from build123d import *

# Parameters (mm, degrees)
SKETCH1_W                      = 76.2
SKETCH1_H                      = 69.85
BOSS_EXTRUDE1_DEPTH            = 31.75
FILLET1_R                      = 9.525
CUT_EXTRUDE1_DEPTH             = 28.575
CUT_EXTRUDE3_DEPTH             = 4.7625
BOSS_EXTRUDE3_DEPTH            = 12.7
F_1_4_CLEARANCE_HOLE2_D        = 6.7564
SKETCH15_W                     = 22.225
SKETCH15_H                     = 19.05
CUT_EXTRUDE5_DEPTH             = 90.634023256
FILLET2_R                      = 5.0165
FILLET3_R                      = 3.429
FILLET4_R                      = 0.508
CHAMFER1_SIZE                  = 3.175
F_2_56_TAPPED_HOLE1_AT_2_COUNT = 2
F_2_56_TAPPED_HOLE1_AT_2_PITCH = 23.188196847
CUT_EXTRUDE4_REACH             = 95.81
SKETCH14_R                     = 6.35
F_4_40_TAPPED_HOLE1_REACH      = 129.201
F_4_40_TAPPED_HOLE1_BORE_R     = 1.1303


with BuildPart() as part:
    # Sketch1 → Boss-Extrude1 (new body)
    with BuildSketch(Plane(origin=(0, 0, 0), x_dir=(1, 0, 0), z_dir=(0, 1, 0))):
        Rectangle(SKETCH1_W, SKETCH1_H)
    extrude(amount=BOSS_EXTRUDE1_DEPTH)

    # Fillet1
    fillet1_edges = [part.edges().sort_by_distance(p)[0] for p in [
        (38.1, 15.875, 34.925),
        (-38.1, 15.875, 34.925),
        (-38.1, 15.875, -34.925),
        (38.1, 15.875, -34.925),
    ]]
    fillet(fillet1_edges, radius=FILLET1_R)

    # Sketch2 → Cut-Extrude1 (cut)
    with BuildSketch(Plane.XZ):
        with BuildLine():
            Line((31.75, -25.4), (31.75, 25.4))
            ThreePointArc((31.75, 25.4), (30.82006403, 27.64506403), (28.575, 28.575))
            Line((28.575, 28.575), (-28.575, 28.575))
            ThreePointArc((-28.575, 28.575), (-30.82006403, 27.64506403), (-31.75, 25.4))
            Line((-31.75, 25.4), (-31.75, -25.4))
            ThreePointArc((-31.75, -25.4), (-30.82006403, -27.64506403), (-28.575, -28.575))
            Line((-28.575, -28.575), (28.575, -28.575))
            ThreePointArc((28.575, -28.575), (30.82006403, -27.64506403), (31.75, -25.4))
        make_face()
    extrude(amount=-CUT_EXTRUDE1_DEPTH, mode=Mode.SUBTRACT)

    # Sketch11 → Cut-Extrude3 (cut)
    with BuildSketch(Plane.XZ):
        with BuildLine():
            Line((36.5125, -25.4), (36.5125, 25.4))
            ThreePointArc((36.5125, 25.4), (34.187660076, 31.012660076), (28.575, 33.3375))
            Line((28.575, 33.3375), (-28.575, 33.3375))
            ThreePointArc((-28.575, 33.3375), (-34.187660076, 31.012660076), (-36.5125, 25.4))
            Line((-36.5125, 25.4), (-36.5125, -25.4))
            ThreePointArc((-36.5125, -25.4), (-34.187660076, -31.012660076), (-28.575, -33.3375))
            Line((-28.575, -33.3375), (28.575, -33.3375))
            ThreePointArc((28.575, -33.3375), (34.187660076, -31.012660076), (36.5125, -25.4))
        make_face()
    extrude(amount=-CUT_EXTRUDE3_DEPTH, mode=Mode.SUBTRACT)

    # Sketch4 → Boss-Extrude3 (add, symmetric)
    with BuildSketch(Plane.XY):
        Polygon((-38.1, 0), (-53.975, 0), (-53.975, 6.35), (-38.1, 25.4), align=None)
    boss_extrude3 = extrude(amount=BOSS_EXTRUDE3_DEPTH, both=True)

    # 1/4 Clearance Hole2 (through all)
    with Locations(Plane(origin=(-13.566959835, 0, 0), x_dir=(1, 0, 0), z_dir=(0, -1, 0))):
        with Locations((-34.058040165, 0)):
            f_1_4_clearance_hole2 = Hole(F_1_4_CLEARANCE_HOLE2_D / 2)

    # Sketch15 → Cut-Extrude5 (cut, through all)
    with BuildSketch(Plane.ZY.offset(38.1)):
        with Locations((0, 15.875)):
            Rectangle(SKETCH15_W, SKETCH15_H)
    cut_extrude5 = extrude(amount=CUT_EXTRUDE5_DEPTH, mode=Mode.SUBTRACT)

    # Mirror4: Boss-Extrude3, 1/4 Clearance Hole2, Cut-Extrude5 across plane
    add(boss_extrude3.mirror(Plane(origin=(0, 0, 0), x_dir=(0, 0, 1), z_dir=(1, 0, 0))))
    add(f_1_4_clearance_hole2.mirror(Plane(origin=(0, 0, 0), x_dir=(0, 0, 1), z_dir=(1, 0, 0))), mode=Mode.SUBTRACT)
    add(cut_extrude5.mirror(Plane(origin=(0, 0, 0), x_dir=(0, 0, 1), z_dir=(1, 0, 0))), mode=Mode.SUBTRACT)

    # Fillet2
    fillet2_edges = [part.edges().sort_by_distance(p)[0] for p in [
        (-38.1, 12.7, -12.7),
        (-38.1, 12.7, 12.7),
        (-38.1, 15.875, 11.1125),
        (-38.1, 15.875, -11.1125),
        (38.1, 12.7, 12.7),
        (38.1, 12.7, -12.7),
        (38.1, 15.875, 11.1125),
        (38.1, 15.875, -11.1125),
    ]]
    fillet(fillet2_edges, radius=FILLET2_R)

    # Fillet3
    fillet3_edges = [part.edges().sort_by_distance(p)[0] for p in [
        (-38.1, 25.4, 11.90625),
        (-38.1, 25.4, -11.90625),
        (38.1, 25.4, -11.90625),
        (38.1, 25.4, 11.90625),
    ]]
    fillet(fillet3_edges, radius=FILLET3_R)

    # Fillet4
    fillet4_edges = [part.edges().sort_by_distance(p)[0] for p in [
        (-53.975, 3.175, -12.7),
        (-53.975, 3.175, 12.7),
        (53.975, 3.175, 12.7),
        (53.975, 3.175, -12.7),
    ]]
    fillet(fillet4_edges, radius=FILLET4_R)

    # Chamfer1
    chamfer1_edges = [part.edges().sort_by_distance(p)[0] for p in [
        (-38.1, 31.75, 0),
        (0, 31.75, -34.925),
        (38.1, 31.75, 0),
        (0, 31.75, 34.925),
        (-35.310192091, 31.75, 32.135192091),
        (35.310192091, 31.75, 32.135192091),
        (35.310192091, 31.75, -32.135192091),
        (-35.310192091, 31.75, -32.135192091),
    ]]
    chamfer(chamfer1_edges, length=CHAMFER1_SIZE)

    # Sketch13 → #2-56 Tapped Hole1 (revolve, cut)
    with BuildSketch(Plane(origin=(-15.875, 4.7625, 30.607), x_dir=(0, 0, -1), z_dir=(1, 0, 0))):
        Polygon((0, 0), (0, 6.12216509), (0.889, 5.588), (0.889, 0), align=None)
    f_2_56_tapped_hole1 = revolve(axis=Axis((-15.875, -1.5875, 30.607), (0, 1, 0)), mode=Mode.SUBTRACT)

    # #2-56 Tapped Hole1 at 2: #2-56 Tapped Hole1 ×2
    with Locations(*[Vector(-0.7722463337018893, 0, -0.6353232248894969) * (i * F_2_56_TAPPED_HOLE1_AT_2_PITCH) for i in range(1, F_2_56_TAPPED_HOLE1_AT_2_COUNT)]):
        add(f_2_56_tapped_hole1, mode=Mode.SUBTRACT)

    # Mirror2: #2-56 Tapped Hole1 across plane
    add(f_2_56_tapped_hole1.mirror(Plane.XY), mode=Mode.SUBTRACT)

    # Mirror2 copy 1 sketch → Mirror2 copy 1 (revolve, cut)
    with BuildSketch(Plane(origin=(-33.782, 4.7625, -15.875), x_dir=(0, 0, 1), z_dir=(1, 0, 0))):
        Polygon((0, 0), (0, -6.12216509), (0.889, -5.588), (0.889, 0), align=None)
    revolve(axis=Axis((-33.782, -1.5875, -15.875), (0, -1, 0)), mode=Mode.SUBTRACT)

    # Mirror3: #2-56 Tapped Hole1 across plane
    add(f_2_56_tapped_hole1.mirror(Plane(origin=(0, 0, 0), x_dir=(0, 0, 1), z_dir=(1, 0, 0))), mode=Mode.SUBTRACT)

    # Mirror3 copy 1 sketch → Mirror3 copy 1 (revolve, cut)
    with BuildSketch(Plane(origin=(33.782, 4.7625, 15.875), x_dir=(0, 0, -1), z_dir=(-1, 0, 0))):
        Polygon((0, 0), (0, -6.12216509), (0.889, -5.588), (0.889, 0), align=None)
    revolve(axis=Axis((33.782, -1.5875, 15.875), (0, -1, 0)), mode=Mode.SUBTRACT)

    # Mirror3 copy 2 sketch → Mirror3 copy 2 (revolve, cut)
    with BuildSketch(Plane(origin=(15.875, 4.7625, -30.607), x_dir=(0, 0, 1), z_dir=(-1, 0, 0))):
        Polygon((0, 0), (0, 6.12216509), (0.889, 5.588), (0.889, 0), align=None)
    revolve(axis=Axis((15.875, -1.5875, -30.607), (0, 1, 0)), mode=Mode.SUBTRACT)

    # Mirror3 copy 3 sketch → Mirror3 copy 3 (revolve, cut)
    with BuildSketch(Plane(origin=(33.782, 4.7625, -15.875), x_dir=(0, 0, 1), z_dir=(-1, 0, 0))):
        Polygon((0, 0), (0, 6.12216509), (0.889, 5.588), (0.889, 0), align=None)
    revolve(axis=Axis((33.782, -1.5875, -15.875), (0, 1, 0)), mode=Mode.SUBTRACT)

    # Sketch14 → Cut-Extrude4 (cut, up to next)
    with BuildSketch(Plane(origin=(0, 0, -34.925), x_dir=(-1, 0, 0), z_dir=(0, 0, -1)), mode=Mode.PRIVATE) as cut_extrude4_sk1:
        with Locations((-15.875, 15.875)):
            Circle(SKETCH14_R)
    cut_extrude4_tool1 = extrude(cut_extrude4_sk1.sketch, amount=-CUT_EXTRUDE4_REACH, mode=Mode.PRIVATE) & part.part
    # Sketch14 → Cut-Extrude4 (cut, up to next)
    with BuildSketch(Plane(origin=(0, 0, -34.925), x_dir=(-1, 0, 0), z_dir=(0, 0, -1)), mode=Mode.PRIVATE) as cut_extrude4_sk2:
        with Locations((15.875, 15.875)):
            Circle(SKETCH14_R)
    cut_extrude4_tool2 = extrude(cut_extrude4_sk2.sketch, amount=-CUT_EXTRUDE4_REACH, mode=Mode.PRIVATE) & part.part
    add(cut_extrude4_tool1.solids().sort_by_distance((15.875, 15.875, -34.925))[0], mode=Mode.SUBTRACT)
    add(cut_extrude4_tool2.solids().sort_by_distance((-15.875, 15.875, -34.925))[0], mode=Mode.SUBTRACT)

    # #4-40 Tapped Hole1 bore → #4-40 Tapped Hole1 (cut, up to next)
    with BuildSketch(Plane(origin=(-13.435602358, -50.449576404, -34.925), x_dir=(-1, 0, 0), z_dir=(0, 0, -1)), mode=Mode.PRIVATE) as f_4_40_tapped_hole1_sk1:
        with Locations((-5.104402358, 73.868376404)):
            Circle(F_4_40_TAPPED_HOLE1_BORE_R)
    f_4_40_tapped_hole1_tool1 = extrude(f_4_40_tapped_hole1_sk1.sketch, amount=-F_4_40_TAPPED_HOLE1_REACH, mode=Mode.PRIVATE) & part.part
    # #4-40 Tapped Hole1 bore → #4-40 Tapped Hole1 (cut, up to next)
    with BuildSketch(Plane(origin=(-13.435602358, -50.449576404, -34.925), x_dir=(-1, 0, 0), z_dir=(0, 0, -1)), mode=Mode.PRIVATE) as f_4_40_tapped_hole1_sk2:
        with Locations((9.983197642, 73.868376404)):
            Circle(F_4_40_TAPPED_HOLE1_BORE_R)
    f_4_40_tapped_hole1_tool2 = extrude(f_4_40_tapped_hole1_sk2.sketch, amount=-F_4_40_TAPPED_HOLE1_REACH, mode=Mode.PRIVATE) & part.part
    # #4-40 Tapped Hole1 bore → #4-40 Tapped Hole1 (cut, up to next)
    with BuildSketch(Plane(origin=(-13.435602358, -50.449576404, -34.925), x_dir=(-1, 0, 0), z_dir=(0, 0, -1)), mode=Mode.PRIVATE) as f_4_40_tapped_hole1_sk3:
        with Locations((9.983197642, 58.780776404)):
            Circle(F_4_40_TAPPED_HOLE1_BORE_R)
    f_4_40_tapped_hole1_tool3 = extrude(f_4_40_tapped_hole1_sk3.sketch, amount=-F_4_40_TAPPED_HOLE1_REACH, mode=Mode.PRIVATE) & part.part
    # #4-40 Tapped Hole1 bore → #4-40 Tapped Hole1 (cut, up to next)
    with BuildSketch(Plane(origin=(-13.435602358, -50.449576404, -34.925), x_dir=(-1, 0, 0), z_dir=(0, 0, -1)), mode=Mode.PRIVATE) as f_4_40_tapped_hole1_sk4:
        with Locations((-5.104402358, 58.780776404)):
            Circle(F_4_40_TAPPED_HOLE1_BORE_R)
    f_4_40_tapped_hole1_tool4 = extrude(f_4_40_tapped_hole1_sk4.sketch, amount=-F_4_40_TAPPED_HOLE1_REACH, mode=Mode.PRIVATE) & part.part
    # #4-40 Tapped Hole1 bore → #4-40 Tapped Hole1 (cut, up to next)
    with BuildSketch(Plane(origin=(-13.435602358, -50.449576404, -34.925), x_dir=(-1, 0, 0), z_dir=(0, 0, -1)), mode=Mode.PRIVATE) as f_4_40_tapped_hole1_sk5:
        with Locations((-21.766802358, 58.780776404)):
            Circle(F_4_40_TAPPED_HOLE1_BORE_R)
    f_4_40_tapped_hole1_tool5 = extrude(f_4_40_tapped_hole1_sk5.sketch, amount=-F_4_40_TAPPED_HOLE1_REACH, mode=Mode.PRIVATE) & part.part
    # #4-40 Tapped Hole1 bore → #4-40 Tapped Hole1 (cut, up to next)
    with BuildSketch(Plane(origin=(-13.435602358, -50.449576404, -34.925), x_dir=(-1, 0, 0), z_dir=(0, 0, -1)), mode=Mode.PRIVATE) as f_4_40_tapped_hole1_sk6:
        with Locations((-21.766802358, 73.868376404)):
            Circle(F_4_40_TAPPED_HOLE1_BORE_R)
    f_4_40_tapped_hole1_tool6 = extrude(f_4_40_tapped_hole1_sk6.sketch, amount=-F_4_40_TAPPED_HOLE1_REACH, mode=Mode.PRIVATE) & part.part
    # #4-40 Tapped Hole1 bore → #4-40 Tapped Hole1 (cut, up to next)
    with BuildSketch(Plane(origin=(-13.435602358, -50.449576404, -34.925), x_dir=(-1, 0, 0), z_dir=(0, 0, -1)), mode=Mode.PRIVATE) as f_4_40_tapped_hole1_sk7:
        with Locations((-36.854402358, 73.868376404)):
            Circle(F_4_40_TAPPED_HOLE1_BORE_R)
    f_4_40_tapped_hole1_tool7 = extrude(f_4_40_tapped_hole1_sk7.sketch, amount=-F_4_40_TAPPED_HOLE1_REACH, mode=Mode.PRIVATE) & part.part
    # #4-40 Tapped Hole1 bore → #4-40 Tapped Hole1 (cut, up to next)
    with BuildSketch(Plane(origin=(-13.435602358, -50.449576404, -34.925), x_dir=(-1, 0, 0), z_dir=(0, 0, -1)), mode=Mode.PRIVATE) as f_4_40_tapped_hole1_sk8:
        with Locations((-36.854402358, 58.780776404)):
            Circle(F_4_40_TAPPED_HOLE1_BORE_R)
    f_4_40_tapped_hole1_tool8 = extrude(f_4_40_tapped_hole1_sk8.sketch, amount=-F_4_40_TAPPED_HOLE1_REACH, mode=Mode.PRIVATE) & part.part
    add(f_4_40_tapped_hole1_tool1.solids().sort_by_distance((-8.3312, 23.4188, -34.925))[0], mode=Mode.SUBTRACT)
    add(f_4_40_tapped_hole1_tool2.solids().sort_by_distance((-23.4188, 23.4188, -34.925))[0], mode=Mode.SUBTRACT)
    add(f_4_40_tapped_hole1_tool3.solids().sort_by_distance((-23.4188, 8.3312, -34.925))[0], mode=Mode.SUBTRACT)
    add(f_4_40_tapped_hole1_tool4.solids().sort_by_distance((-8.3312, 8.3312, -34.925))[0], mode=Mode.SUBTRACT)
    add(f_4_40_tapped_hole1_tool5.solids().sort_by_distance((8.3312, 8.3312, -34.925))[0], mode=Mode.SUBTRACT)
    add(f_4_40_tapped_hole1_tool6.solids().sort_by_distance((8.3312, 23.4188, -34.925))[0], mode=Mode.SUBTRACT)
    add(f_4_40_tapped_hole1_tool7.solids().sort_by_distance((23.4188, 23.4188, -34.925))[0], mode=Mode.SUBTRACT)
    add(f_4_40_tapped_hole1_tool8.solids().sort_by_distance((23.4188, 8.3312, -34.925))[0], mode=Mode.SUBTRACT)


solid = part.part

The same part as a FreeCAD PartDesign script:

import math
import FreeCAD as App
import Part
import Sketcher
Q = App.Units.Quantity


def edges_at(feature, points):
    """Names of the edges that pass closest to the given points."""
    edges = feature.Shape.Edges
    near = lambda p: min(range(len(edges)), key=lambda i: edges[i].distToShape(Part.Vertex(*p))[0])
    return sorted({f"Edge{near(p) + 1}" for p in points})

doc = App.newDocument("Part")
params = doc.addObject("Spreadsheet::Sheet", "Params")
for row, (alias, value) in enumerate([
    ("sketch1_width", "3 in"),
    ("sketch1_height", "2.75 in"),
    ("pad1_length", "1.25 in"),
    ("fillet_radius", "0.375 in"),
    ("sketch2_height", "2 in"),
    ("sketch2_radius", "0.125 in"),
    ("sketch2_width", "2.25 in"),
    ("pocket1_length", "1.125 in"),
    ("sketch3_height", "2 in"),
    ("sketch3_radius", "0.3125 in"),
    ("sketch3_width", "2.25 in"),
    ("pocket2_length", "0.1875 in"),
    ("sketch4_height", "1 in"),
    ("sketch4_height2", "0.25 in"),
    ("sketch4_width", "0.625 in"),
    ("pad2_length", "1 in"),
    ("sketch5_diameter", "0.266 in"),
    ("hole_diameter", "0.266 in"),
    ("sketch6_width", "0.75 in"),
    ("sketch6_height", "0.875 in"),
    ("fillet2_radius", "0.1975 in"),
    ("fillet3_radius", "0.135 in"),
    ("fillet4_radius", "0.02 in"),
    ("chamfer_size", "0.125 in"),
    ("sketch7_width", "0.22 in"),
    ("sketch7_height", "0.035 in"),
    ("groove_angle", "360 deg"),
    ("linearpattern_pitch", "23.188197 mm"),
    ("sketch8_width", "0.22 in"),
    ("sketch8_height", "0.035 in"),
    ("groove2_angle", "360 deg"),
    ("sketch9_width", "0.22 in"),
    ("sketch9_height", "0.035 in"),
    ("groove3_angle", "360 deg"),
    ("sketch10_width", "0.22 in"),
    ("sketch10_height", "0.035 in"),
    ("groove4_angle", "360 deg"),
    ("sketch11_width", "0.22 in"),
    ("sketch11_height", "0.035 in"),
    ("groove5_angle", "360 deg"),
    ("sketch12_diameter", "0.5 in"),
    ("sketch13_diameter", "0.5 in"),
    ("sketch14_diameter", "0.089 in"),
    ("sketch15_diameter", "0.089 in"),
    ("sketch16_diameter", "0.089 in"),
    ("sketch17_diameter", "0.089 in"),
    ("sketch18_diameter", "0.089 in"),
    ("sketch19_diameter", "0.089 in"),
    ("sketch20_diameter", "0.089 in"),
    ("sketch21_diameter", "0.089 in"),
], start=1):
    params.set(f"A{row}", alias)
    params.set(f"B{row}", "=" + value)
    params.setAlias(f"B{row}", alias)

body = doc.addObject("PartDesign::Body", "Body")

sketch1 = body.newObject("Sketcher::SketchObject", "Sketch")
sketch1.AttachmentSupport = (doc.getObject("XZ_Plane"), [""])
sketch1.MapMode = "FlatFace"
sketch1.addGeometry(Part.LineSegment(App.Vector(-38, -35, 0), App.Vector(-38, 35, 0)), False)
sketch1.addGeometry(Part.LineSegment(App.Vector(-38, 35, 0), App.Vector(38, 35, 0)), False)
sketch1.addGeometry(Part.LineSegment(App.Vector(38, 35, 0), App.Vector(38, -35, 0)), False)
sketch1.addGeometry(Part.LineSegment(App.Vector(38, -35, 0), App.Vector(-38, -35, 0)), False)
sketch1.addConstraint(Sketcher.Constraint("Coincident", 0, 2, 1, 1))
sketch1.addConstraint(Sketcher.Constraint("Coincident", 1, 2, 2, 1))
sketch1.addConstraint(Sketcher.Constraint("Coincident", 2, 2, 3, 1))
sketch1.addConstraint(Sketcher.Constraint("Coincident", 3, 2, 0, 1))
sketch1.addConstraint(Sketcher.Constraint("Vertical", 0))
sketch1.addConstraint(Sketcher.Constraint("Horizontal", 1))
sketch1.addConstraint(Sketcher.Constraint("Vertical", 2))
sketch1.addConstraint(Sketcher.Constraint("Horizontal", 3))
sketch1.addConstraint(Sketcher.Constraint("Symmetric", 0, 2, 2, 2, -1, 1))
sketch1.addConstraint(Sketcher.Constraint("DistanceX", 1, 1, 1, 2, Q("3 in")))
sketch1.addConstraint(Sketcher.Constraint("DistanceY", 0, 1, 0, 2, Q("2.75 in")))
sketch1.setExpression("Constraints[9]", "Params.sketch1_width")
sketch1.setExpression("Constraints[10]", "Params.sketch1_height")
pad1 = body.newObject("PartDesign::Pad", "Pad")
pad1.Profile = sketch1
pad1.setExpression("Length", "Params.pad1_length")
pad1.Reversed = True
doc.recompute()

fillet = body.newObject("PartDesign::Fillet", "Fillet")
fillet.Base = (pad1, edges_at(pad1, [
    (38.1, 15.875, 34.925),
    (-38.1, 15.875, 34.925),
    (-38.1, 15.875, -34.925),
    (38.1, 15.875, -34.925),
]))
fillet.setExpression("Radius", "Params.fillet_radius")

sketch2 = body.newObject("Sketcher::SketchObject", "Sketch001")
sketch2.AttachmentSupport = (doc.getObject("XZ_Plane"), [""])
sketch2.MapMode = "FlatFace"
sketch2.addGeometry(Part.LineSegment(App.Vector(31.8, -25.4, 0), App.Vector(31.8, 25.4, 0)), False)
sketch2.addGeometry(Part.ArcOfCircle(Part.Circle(App.Vector(28.6, 25.4, 0), App.Vector(0, 0, 1), 3.2), math.radians(0), math.radians(90)), False)
sketch2.addGeometry(Part.LineSegment(App.Vector(28.6, 28.6, 0), App.Vector(-28.6, 28.6, 0)), False)
sketch2.addGeometry(Part.ArcOfCircle(Part.Circle(App.Vector(-28.6, 25.4, 0), App.Vector(0, 0, 1), 3.2), math.radians(90), math.radians(180)), False)
sketch2.addGeometry(Part.LineSegment(App.Vector(-31.8, 25.4, 0), App.Vector(-31.8, -25.4, 0)), False)
sketch2.addGeometry(Part.ArcOfCircle(Part.Circle(App.Vector(-28.6, -25.4, 0), App.Vector(0, 0, 1), 3.2), math.radians(-180), math.radians(-90)), False)
sketch2.addGeometry(Part.LineSegment(App.Vector(-28.6, -28.6, 0), App.Vector(28.6, -28.6, 0)), False)
sketch2.addGeometry(Part.ArcOfCircle(Part.Circle(App.Vector(28.6, -25.4, 0), App.Vector(0, 0, 1), 3.2), math.radians(-90), math.radians(0)), False)
sketch2.addConstraint(Sketcher.Constraint("Tangent", 0, 2, 1, 1))
sketch2.addConstraint(Sketcher.Constraint("Tangent", 1, 2, 2, 1))
sketch2.addConstraint(Sketcher.Constraint("Tangent", 2, 2, 3, 1))
sketch2.addConstraint(Sketcher.Constraint("Tangent", 3, 2, 4, 1))
sketch2.addConstraint(Sketcher.Constraint("Tangent", 4, 2, 5, 1))
sketch2.addConstraint(Sketcher.Constraint("Tangent", 5, 2, 6, 1))
sketch2.addConstraint(Sketcher.Constraint("Tangent", 6, 2, 7, 1))
sketch2.addConstraint(Sketcher.Constraint("Tangent", 7, 2, 0, 1))
sketch2.addConstraint(Sketcher.Constraint("Vertical", 0))
sketch2.addConstraint(Sketcher.Constraint("Horizontal", 2))
sketch2.addConstraint(Sketcher.Constraint("Vertical", 4))
sketch2.addConstraint(Sketcher.Constraint("Horizontal", 6))
sketch2.addConstraint(Sketcher.Constraint("Equal", 1, 3))
sketch2.addConstraint(Sketcher.Constraint("Equal", 3, 5))
sketch2.addConstraint(Sketcher.Constraint("Equal", 5, 7))
sketch2.addConstraint(Sketcher.Constraint("Symmetric", 1, 3, 5, 3, -1, 1))
sketch2.addConstraint(Sketcher.Constraint("DistanceY", 0, 1, 0, 2, Q("2 in")))
sketch2.addConstraint(Sketcher.Constraint("Radius", 1, Q("0.125 in")))
sketch2.addConstraint(Sketcher.Constraint("DistanceX", 2, 2, 2, 1, Q("2.25 in")))
sketch2.setExpression("Constraints[16]", "Params.sketch2_height")
sketch2.setExpression("Constraints[17]", "Params.sketch2_radius")
sketch2.setExpression("Constraints[18]", "Params.sketch2_width")
pocket1 = body.newObject("PartDesign::Pocket", "Pocket")
pocket1.Profile = sketch2
pocket1.setExpression("Length", "Params.pocket1_length")

sketch3 = body.newObject("Sketcher::SketchObject", "Sketch002")
sketch3.AttachmentSupport = (doc.getObject("XZ_Plane"), [""])
sketch3.MapMode = "FlatFace"
sketch3.addGeometry(Part.LineSegment(App.Vector(37, -25, 0), App.Vector(37, 25, 0)), False)
sketch3.addGeometry(Part.ArcOfCircle(Part.Circle(App.Vector(29, 25, 0), App.Vector(0, 0, 1), 8), math.radians(0), math.radians(90)), False)
sketch3.addGeometry(Part.LineSegment(App.Vector(29, 33, 0), App.Vector(-29, 33, 0)), False)
sketch3.addGeometry(Part.ArcOfCircle(Part.Circle(App.Vector(-29, 25, 0), App.Vector(0, 0, 1), 8), math.radians(90), math.radians(180)), False)
sketch3.addGeometry(Part.LineSegment(App.Vector(-37, 25, 0), App.Vector(-37, -25, 0)), False)
sketch3.addGeometry(Part.ArcOfCircle(Part.Circle(App.Vector(-29, -25, 0), App.Vector(0, 0, 1), 8), math.radians(180), math.radians(270)), False)
sketch3.addGeometry(Part.LineSegment(App.Vector(-29, -33, 0), App.Vector(29, -33, 0)), False)
sketch3.addGeometry(Part.ArcOfCircle(Part.Circle(App.Vector(29, -25, 0), App.Vector(0, 0, 1), 8), math.radians(-90), math.radians(0)), False)
sketch3.addConstraint(Sketcher.Constraint("Tangent", 0, 2, 1, 1))
sketch3.addConstraint(Sketcher.Constraint("Tangent", 1, 2, 2, 1))
sketch3.addConstraint(Sketcher.Constraint("Tangent", 2, 2, 3, 1))
sketch3.addConstraint(Sketcher.Constraint("Tangent", 3, 2, 4, 1))
sketch3.addConstraint(Sketcher.Constraint("Tangent", 4, 2, 5, 1))
sketch3.addConstraint(Sketcher.Constraint("Tangent", 5, 2, 6, 1))
sketch3.addConstraint(Sketcher.Constraint("Tangent", 6, 2, 7, 1))
sketch3.addConstraint(Sketcher.Constraint("Tangent", 7, 2, 0, 1))
sketch3.addConstraint(Sketcher.Constraint("Vertical", 0))
sketch3.addConstraint(Sketcher.Constraint("Horizontal", 2))
sketch3.addConstraint(Sketcher.Constraint("Vertical", 4))
sketch3.addConstraint(Sketcher.Constraint("Horizontal", 6))
sketch3.addConstraint(Sketcher.Constraint("Equal", 1, 3))
sketch3.addConstraint(Sketcher.Constraint("Equal", 3, 5))
sketch3.addConstraint(Sketcher.Constraint("Equal", 5, 7))
sketch3.addConstraint(Sketcher.Constraint("Symmetric", 1, 3, 5, 3, -1, 1))
sketch3.addConstraint(Sketcher.Constraint("DistanceY", 0, 1, 0, 2, Q("2 in")))
sketch3.addConstraint(Sketcher.Constraint("Radius", 1, Q("0.3125 in")))
sketch3.addConstraint(Sketcher.Constraint("DistanceX", 2, 2, 2, 1, Q("2.25 in")))
sketch3.setExpression("Constraints[16]", "Params.sketch3_height")
sketch3.setExpression("Constraints[17]", "Params.sketch3_radius")
sketch3.setExpression("Constraints[18]", "Params.sketch3_width")
pocket2 = body.newObject("PartDesign::Pocket", "Pocket001")
pocket2.Profile = sketch3
pocket2.setExpression("Length", "Params.pocket2_length")

sketch4 = body.newObject("Sketcher::SketchObject", "Sketch003")
sketch4.AttachmentSupport = (doc.getObject("XY_Plane"), [""])
sketch4.MapMode = "FlatFace"
sketch4.addGeometry(Part.LineSegment(App.Vector(-54, 0, 0), App.Vector(-38, 0, 0)), False)
sketch4.addGeometry(Part.LineSegment(App.Vector(-38, 0, 0), App.Vector(-38, 25, 0)), False)
sketch4.addGeometry(Part.LineSegment(App.Vector(-38, 25, 0), App.Vector(-54, 6, 0)), False)
sketch4.addGeometry(Part.LineSegment(App.Vector(-54, 6, 0), App.Vector(-54, 0, 0)), False)
sketch4.addConstraint(Sketcher.Constraint("Coincident", 0, 2, 1, 1))
sketch4.addConstraint(Sketcher.Constraint("Coincident", 1, 2, 2, 1))
sketch4.addConstraint(Sketcher.Constraint("Coincident", 2, 2, 3, 1))
sketch4.addConstraint(Sketcher.Constraint("Coincident", 3, 2, 0, 1))
sketch4.addConstraint(Sketcher.Constraint("Horizontal", 0))
sketch4.addConstraint(Sketcher.Constraint("Vertical", 1))
sketch4.addConstraint(Sketcher.Constraint("Vertical", 3))
sketch4.addConstraint(Sketcher.Constraint("PointOnObject", 0, 2, -1))
sketch4.addConstraint(Sketcher.Constraint("DistanceY", 1, 1, 1, 2, Q("1 in")))
sketch4.addConstraint(Sketcher.Constraint("DistanceY", 3, 2, 3, 1, Q("0.25 in")))
sketch4.addConstraint(Sketcher.Constraint("DistanceX", 0, 2, -1, 1, Q("1.5 in")))
sketch4.addConstraint(Sketcher.Constraint("DistanceX", 0, 1, 0, 2, Q("0.625 in")))
sketch4.setExpression("Constraints[8]", "Params.sketch4_height")
sketch4.setExpression("Constraints[9]", "Params.sketch4_height2")
sketch4.setExpression("Constraints[11]", "Params.sketch4_width")
pad2 = body.newObject("PartDesign::Pad", "Pad001")
pad2.Profile = sketch4
pad2.setExpression("Length", "Params.pad2_length")
pad2.Midplane = True

sketch5 = body.newObject("Sketcher::SketchObject", "Sketch004")
sketch5.AttachmentSupport = (doc.getObject("XZ_Plane"), [""])
sketch5.MapMode = "FlatFace"
sketch5.addGeometry(Part.Circle(App.Vector(-47.6, 0, 0), App.Vector(0, 0, 1), 3.4), False)
sketch5.addConstraint(Sketcher.Constraint("PointOnObject", 0, 3, -1))
sketch5.addConstraint(Sketcher.Constraint("Diameter", 0, Q("0.266 in")))
sketch5.addConstraint(Sketcher.Constraint("DistanceX", 0, 3, -1, 1, Q("1.875 in")))
sketch5.setExpression("Constraints[1]", "Params.sketch5_diameter")
doc.recompute()
hole = body.newObject("PartDesign::Hole", "Hole")
hole.Profile = sketch5
hole.ThreadType = "None"
hole.setExpression("Diameter", "Params.hole_diameter")
hole.DepthType = "ThroughAll"

sketch6 = body.newObject("Sketcher::SketchObject", "Sketch005")
sketch6.AttachmentSupport = (doc.getObject("YZ_Plane"), [""])
sketch6.MapMode = "FlatFace"
sketch6.AttachmentOffset = App.Placement(App.Vector(0, 0, -1.5 * 25.4), App.Rotation())
sketch6.addGeometry(Part.LineSegment(App.Vector(25, -11, 0), App.Vector(6, -11, 0)), False)
sketch6.addGeometry(Part.LineSegment(App.Vector(6, -11, 0), App.Vector(6, 11, 0)), False)
sketch6.addGeometry(Part.LineSegment(App.Vector(6, 11, 0), App.Vector(25, 11, 0)), False)
sketch6.addGeometry(Part.LineSegment(App.Vector(25, 11, 0), App.Vector(25, -11, 0)), False)
sketch6.addConstraint(Sketcher.Constraint("Coincident", 0, 2, 1, 1))
sketch6.addConstraint(Sketcher.Constraint("Coincident", 1, 2, 2, 1))
sketch6.addConstraint(Sketcher.Constraint("Coincident", 2, 2, 3, 1))
sketch6.addConstraint(Sketcher.Constraint("Coincident", 3, 2, 0, 1))
sketch6.addConstraint(Sketcher.Constraint("Horizontal", 0))
sketch6.addConstraint(Sketcher.Constraint("Vertical", 1))
sketch6.addConstraint(Sketcher.Constraint("Horizontal", 2))
sketch6.addConstraint(Sketcher.Constraint("Vertical", 3))
sketch6.addConstraint(Sketcher.Constraint("DistanceX", -1, 1, 2, 2, Q("1 in")))
sketch6.addConstraint(Sketcher.Constraint("DistanceX", 0, 2, 0, 1, Q("0.75 in")))
sketch6.addConstraint(Sketcher.Constraint("DistanceY", 1, 1, 1, 2, Q("0.875 in")))
sketch6.addConstraint(Sketcher.Constraint("DistanceY", 0, 2, -1, 1, Q("0.4375 in")))
sketch6.setExpression("Constraints[9]", "Params.sketch6_width")
sketch6.setExpression("Constraints[10]", "Params.sketch6_height")
pocket3 = body.newObject("PartDesign::Pocket", "Pocket002")
pocket3.Profile = sketch6
pocket3.Type = "ThroughAll"
doc.recompute()

mirrored = body.newObject("PartDesign::Mirrored", "Mirrored")
mirrored.Originals = [pad2, hole, pocket3]
mirrored.MirrorPlane = (doc.getObject("YZ_Plane"), [""])
body.Tip = mirrored
doc.recompute()

fillet2 = body.newObject("PartDesign::Fillet", "Fillet001")
fillet2.Base = (mirrored, edges_at(mirrored, [
    (-38.1, 12.7, -12.7),
    (-38.1, 12.7, 12.7),
    (-38.1, 15.875, 11.113),
    (-38.1, 15.875, -11.113),
    (38.1, 12.7, 12.7),
    (38.1, 12.7, -12.7),
    (38.1, 15.875, 11.113),
    (38.1, 15.875, -11.113),
]))
fillet2.setExpression("Radius", "Params.fillet2_radius")
doc.recompute()

fillet3 = body.newObject("PartDesign::Fillet", "Fillet002")
fillet3.Base = (fillet2, edges_at(fillet2, [
    (-38.1, 25.4, 11.906),
    (-38.1, 25.4, -11.906),
    (38.1, 25.4, -11.906),
    (38.1, 25.4, 11.906),
]))
fillet3.setExpression("Radius", "Params.fillet3_radius")
doc.recompute()

fillet4 = body.newObject("PartDesign::Fillet", "Fillet003")
fillet4.Base = (fillet3, edges_at(fillet3, [
    (-53.975, 3.175, -12.7),
    (-53.975, 3.175, 12.7),
    (53.975, 3.175, 12.7),
    (53.975, 3.175, -12.7),
]))
fillet4.setExpression("Radius", "Params.fillet4_radius")
doc.recompute()

chamfer = body.newObject("PartDesign::Chamfer", "Chamfer")
chamfer.Base = (fillet4, edges_at(fillet4, [
    (-38.1, 31.75, 0),
    (0, 31.75, -34.925),
    (38.1, 31.75, 0),
    (0, 31.75, 34.925),
    (-35.31, 31.75, 32.135),
    (35.31, 31.75, 32.135),
    (35.31, 31.75, -32.135),
    (-35.31, 31.75, -32.135),
]))
chamfer.setExpression("Size", "Params.chamfer_size")

sketch7 = body.newObject("Sketcher::SketchObject", "Sketch006")
sketch7.AttachmentSupport = (doc.getObject("YZ_Plane"), [""])
sketch7.MapMode = "FlatFace"
sketch7.AttachmentOffset = App.Placement(App.Vector(0, 0, -0.625 * 25.4), App.Rotation())
sketch7.addGeometry(Part.LineSegment(App.Vector(10.9, 30.6, 0), App.Vector(4.8, 30.6, 0)), False)
sketch7.addGeometry(Part.LineSegment(App.Vector(4.8, 30.6, 0), App.Vector(4.8, 29.7, 0)), False)
sketch7.addGeometry(Part.LineSegment(App.Vector(4.8, 29.7, 0), App.Vector(10.4, 29.7, 0)), False)
sketch7.addGeometry(Part.LineSegment(App.Vector(10.4, 29.7, 0), App.Vector(10.9, 30.6, 0)), False)
sketch7.addGeometry(Part.LineSegment(App.Vector(4.8, 30.6, 0), App.Vector(10.9, 30.6, 0)), True)
sketch7.addConstraint(Sketcher.Constraint("Coincident", 0, 2, 1, 1))
sketch7.addConstraint(Sketcher.Constraint("Coincident", 1, 2, 2, 1))
sketch7.addConstraint(Sketcher.Constraint("Coincident", 2, 2, 3, 1))
sketch7.addConstraint(Sketcher.Constraint("Coincident", 3, 2, 0, 1))
sketch7.addConstraint(Sketcher.Constraint("Horizontal", 0))
sketch7.addConstraint(Sketcher.Constraint("Vertical", 1))
sketch7.addConstraint(Sketcher.Constraint("Horizontal", 2))
sketch7.addConstraint(Sketcher.Constraint("Horizontal", 4))
sketch7.addConstraint(Sketcher.Constraint("Coincident", 4, 1, 0, 2))
sketch7.addConstraint(Sketcher.Constraint("Equal", 0, 4))
sketch7.addConstraint(Sketcher.Constraint("Angle", 3, Q("59 deg")))
sketch7.addConstraint(Sketcher.Constraint("DistanceX", 2, 1, 2, 2, Q("0.22 in")))
sketch7.addConstraint(Sketcher.Constraint("DistanceY", 1, 2, 1, 1, Q("0.035 in")))
sketch7.addConstraint(Sketcher.Constraint("DistanceY", -1, 1, 1, 2, Q("1.17 in")))
sketch7.addConstraint(Sketcher.Constraint("DistanceX", -1, 1, 0, 2, Q("0.1875 in")))
sketch7.setExpression("Constraints[11]", "Params.sketch7_width")
sketch7.setExpression("Constraints[12]", "Params.sketch7_height")
groove = body.newObject("PartDesign::Groove", "Groove")
groove.Profile = sketch7
groove.ReferenceAxis = (sketch7, ["Axis0"])
groove.setExpression("Angle", "Params.groove_angle")
doc.recompute()

datumline = body.newObject("PartDesign::Line", "DatumLine")
datumline.Placement = App.Placement(App.Vector(0, 0, 0), App.Rotation(App.Vector(0, 0, 1), App.Vector(-0.772246334, 0, -0.635323225)))
linearpattern = body.newObject("PartDesign::LinearPattern", "LinearPattern")
linearpattern.Originals = [groove]
linearpattern.Direction = (datumline, [""])
linearpattern.Mode = "offset"
linearpattern.setExpression("Offset", "Params.linearpattern_pitch")
linearpattern.Occurrences = 2
body.Tip = linearpattern
doc.recompute()

mirrored2 = body.newObject("PartDesign::Mirrored", "Mirrored001")
mirrored2.Originals = [groove]
mirrored2.MirrorPlane = (doc.getObject("XY_Plane"), [""])
body.Tip = mirrored2

sketch8 = body.newObject("Sketcher::SketchObject", "Sketch007")
sketch8.AttachmentSupport = (doc.getObject("YZ_Plane"), [""])
sketch8.MapMode = "FlatFace"
sketch8.AttachmentOffset = App.Placement(App.Vector(0, 0, -1.33 * 25.4), App.Rotation())
sketch8.addGeometry(Part.LineSegment(App.Vector(4.8, -15.9, 0), App.Vector(10.9, -15.9, 0)), False)
sketch8.addGeometry(Part.LineSegment(App.Vector(10.9, -15.9, 0), App.Vector(10.4, -15, 0)), False)
sketch8.addGeometry(Part.LineSegment(App.Vector(10.4, -15, 0), App.Vector(4.8, -15, 0)), False)
sketch8.addGeometry(Part.LineSegment(App.Vector(4.8, -15, 0), App.Vector(4.8, -15.9, 0)), False)
sketch8.addGeometry(Part.LineSegment(App.Vector(10.9, -15.9, 0), App.Vector(4.8, -15.9, 0)), True)
sketch8.addConstraint(Sketcher.Constraint("Coincident", 0, 2, 1, 1))
sketch8.addConstraint(Sketcher.Constraint("Coincident", 1, 2, 2, 1))
sketch8.addConstraint(Sketcher.Constraint("Coincident", 2, 2, 3, 1))
sketch8.addConstraint(Sketcher.Constraint("Coincident", 3, 2, 0, 1))
sketch8.addConstraint(Sketcher.Constraint("Horizontal", 0))
sketch8.addConstraint(Sketcher.Constraint("Horizontal", 2))
sketch8.addConstraint(Sketcher.Constraint("Vertical", 3))
sketch8.addConstraint(Sketcher.Constraint("Horizontal", 4))
sketch8.addConstraint(Sketcher.Constraint("Coincident", 4, 1, 0, 2))
sketch8.addConstraint(Sketcher.Constraint("Vertical", 2, 2, 4, 2))
sketch8.addConstraint(Sketcher.Constraint("Angle", 1, Q("121 deg")))
sketch8.addConstraint(Sketcher.Constraint("DistanceX", 2, 2, 2, 1, Q("0.22 in")))
sketch8.addConstraint(Sketcher.Constraint("DistanceY", 3, 2, 3, 1, Q("0.035 in")))
sketch8.addConstraint(Sketcher.Constraint("DistanceY", 1, 2, -1, 1, Q("0.59 in")))
sketch8.addConstraint(Sketcher.Constraint("DistanceX", -1, 1, 2, 2, Q("0.1875 in")))
sketch8.setExpression("Constraints[11]", "Params.sketch8_width")
sketch8.setExpression("Constraints[12]", "Params.sketch8_height")
groove2 = body.newObject("PartDesign::Groove", "Groove001")
groove2.Profile = sketch8
groove2.ReferenceAxis = (sketch8, ["Axis0"])
groove2.setExpression("Angle", "Params.groove2_angle")
doc.recompute()

mirrored3 = body.newObject("PartDesign::Mirrored", "Mirrored002")
mirrored3.Originals = [groove]
mirrored3.MirrorPlane = (doc.getObject("YZ_Plane"), [""])
body.Tip = mirrored3

sketch9 = body.newObject("Sketcher::SketchObject", "Sketch008")
sketch9.AttachmentSupport = (doc.getObject("YZ_Plane"), [""])
sketch9.MapMode = "FlatFace"
sketch9.AttachmentOffset = App.Placement(App.Vector(0, 0, 1.33 * 25.4), App.Rotation())
sketch9.addGeometry(Part.LineSegment(App.Vector(4.8, 15.9, 0), App.Vector(10.9, 15.9, 0)), False)
sketch9.addGeometry(Part.LineSegment(App.Vector(10.9, 15.9, 0), App.Vector(10.4, 15, 0)), False)
sketch9.addGeometry(Part.LineSegment(App.Vector(10.4, 15, 0), App.Vector(4.8, 15, 0)), False)
sketch9.addGeometry(Part.LineSegment(App.Vector(4.8, 15, 0), App.Vector(4.8, 15.9, 0)), False)
sketch9.addGeometry(Part.LineSegment(App.Vector(10.9, 15.9, 0), App.Vector(4.8, 15.9, 0)), True)
sketch9.addConstraint(Sketcher.Constraint("Coincident", 0, 2, 1, 1))
sketch9.addConstraint(Sketcher.Constraint("Coincident", 1, 2, 2, 1))
sketch9.addConstraint(Sketcher.Constraint("Coincident", 2, 2, 3, 1))
sketch9.addConstraint(Sketcher.Constraint("Coincident", 3, 2, 0, 1))
sketch9.addConstraint(Sketcher.Constraint("Horizontal", 0))
sketch9.addConstraint(Sketcher.Constraint("Horizontal", 2))
sketch9.addConstraint(Sketcher.Constraint("Vertical", 3))
sketch9.addConstraint(Sketcher.Constraint("Horizontal", 4))
sketch9.addConstraint(Sketcher.Constraint("Coincident", 4, 1, 0, 2))
sketch9.addConstraint(Sketcher.Constraint("Vertical", 2, 2, 4, 2))
sketch9.addConstraint(Sketcher.Constraint("Angle", 1, Q("-121 deg")))
sketch9.addConstraint(Sketcher.Constraint("DistanceX", 2, 2, 2, 1, Q("0.22 in")))
sketch9.addConstraint(Sketcher.Constraint("DistanceY", 3, 1, 3, 2, Q("0.035 in")))
sketch9.addConstraint(Sketcher.Constraint("DistanceY", -1, 1, 1, 2, Q("0.59 in")))
sketch9.addConstraint(Sketcher.Constraint("DistanceX", -1, 1, 2, 2, Q("0.1875 in")))
sketch9.setExpression("Constraints[11]", "Params.sketch9_width")
sketch9.setExpression("Constraints[12]", "Params.sketch9_height")
groove3 = body.newObject("PartDesign::Groove", "Groove002")
groove3.Profile = sketch9
groove3.ReferenceAxis = (sketch9, ["Axis0"])
groove3.setExpression("Angle", "Params.groove3_angle")

sketch10 = body.newObject("Sketcher::SketchObject", "Sketch009")
sketch10.AttachmentSupport = (doc.getObject("YZ_Plane"), [""])
sketch10.MapMode = "FlatFace"
sketch10.AttachmentOffset = App.Placement(App.Vector(0, 0, 0.625 * 25.4), App.Rotation())
sketch10.addGeometry(Part.LineSegment(App.Vector(10.9, -30.6, 0), App.Vector(4.8, -30.6, 0)), False)
sketch10.addGeometry(Part.LineSegment(App.Vector(4.8, -30.6, 0), App.Vector(4.8, -29.7, 0)), False)
sketch10.addGeometry(Part.LineSegment(App.Vector(4.8, -29.7, 0), App.Vector(10.4, -29.7, 0)), False)
sketch10.addGeometry(Part.LineSegment(App.Vector(10.4, -29.7, 0), App.Vector(10.9, -30.6, 0)), False)
sketch10.addGeometry(Part.LineSegment(App.Vector(4.8, -30.6, 0), App.Vector(10.9, -30.6, 0)), True)
sketch10.addConstraint(Sketcher.Constraint("Coincident", 0, 2, 1, 1))
sketch10.addConstraint(Sketcher.Constraint("Coincident", 1, 2, 2, 1))
sketch10.addConstraint(Sketcher.Constraint("Coincident", 2, 2, 3, 1))
sketch10.addConstraint(Sketcher.Constraint("Coincident", 3, 2, 0, 1))
sketch10.addConstraint(Sketcher.Constraint("Horizontal", 0))
sketch10.addConstraint(Sketcher.Constraint("Vertical", 1))
sketch10.addConstraint(Sketcher.Constraint("Horizontal", 2))
sketch10.addConstraint(Sketcher.Constraint("Horizontal", 4))
sketch10.addConstraint(Sketcher.Constraint("Coincident", 4, 1, 0, 2))
sketch10.addConstraint(Sketcher.Constraint("Equal", 0, 4))
sketch10.addConstraint(Sketcher.Constraint("Angle", 3, Q("-59 deg")))
sketch10.addConstraint(Sketcher.Constraint("DistanceX", 2, 1, 2, 2, Q("0.22 in")))
sketch10.addConstraint(Sketcher.Constraint("DistanceY", 1, 1, 1, 2, Q("0.035 in")))
sketch10.addConstraint(Sketcher.Constraint("DistanceY", 1, 2, -1, 1, Q("1.17 in")))
sketch10.addConstraint(Sketcher.Constraint("DistanceX", -1, 1, 0, 2, Q("0.1875 in")))
sketch10.setExpression("Constraints[11]", "Params.sketch10_width")
sketch10.setExpression("Constraints[12]", "Params.sketch10_height")
groove4 = body.newObject("PartDesign::Groove", "Groove003")
groove4.Profile = sketch10
groove4.ReferenceAxis = (sketch10, ["Axis0"])
groove4.setExpression("Angle", "Params.groove4_angle")

sketch11 = body.newObject("Sketcher::SketchObject", "Sketch010")
sketch11.AttachmentSupport = (doc.getObject("YZ_Plane"), [""])
sketch11.MapMode = "FlatFace"
sketch11.AttachmentOffset = App.Placement(App.Vector(0, 0, 1.33 * 25.4), App.Rotation())
sketch11.addGeometry(Part.LineSegment(App.Vector(10.9, -15.9, 0), App.Vector(4.8, -15.9, 0)), False)
sketch11.addGeometry(Part.LineSegment(App.Vector(4.8, -15.9, 0), App.Vector(4.8, -15, 0)), False)
sketch11.addGeometry(Part.LineSegment(App.Vector(4.8, -15, 0), App.Vector(10.4, -15, 0)), False)
sketch11.addGeometry(Part.LineSegment(App.Vector(10.4, -15, 0), App.Vector(10.9, -15.9, 0)), False)
sketch11.addGeometry(Part.LineSegment(App.Vector(4.8, -15.9, 0), App.Vector(10.9, -15.9, 0)), True)
sketch11.addConstraint(Sketcher.Constraint("Coincident", 0, 2, 1, 1))
sketch11.addConstraint(Sketcher.Constraint("Coincident", 1, 2, 2, 1))
sketch11.addConstraint(Sketcher.Constraint("Coincident", 2, 2, 3, 1))
sketch11.addConstraint(Sketcher.Constraint("Coincident", 3, 2, 0, 1))
sketch11.addConstraint(Sketcher.Constraint("Horizontal", 0))
sketch11.addConstraint(Sketcher.Constraint("Vertical", 1))
sketch11.addConstraint(Sketcher.Constraint("Horizontal", 2))
sketch11.addConstraint(Sketcher.Constraint("Horizontal", 4))
sketch11.addConstraint(Sketcher.Constraint("Coincident", 4, 1, 0, 2))
sketch11.addConstraint(Sketcher.Constraint("Equal", 0, 4))
sketch11.addConstraint(Sketcher.Constraint("Angle", 3, Q("-59 deg")))
sketch11.addConstraint(Sketcher.Constraint("DistanceX", 2, 1, 2, 2, Q("0.22 in")))
sketch11.addConstraint(Sketcher.Constraint("DistanceY", 1, 1, 1, 2, Q("0.035 in")))
sketch11.addConstraint(Sketcher.Constraint("DistanceY", 1, 2, -1, 1, Q("0.59 in")))
sketch11.addConstraint(Sketcher.Constraint("DistanceX", -1, 1, 0, 2, Q("0.1875 in")))
sketch11.setExpression("Constraints[11]", "Params.sketch11_width")
sketch11.setExpression("Constraints[12]", "Params.sketch11_height")
groove5 = body.newObject("PartDesign::Groove", "Groove004")
groove5.Profile = sketch11
groove5.ReferenceAxis = (sketch11, ["Axis0"])
groove5.setExpression("Angle", "Params.groove5_angle")

sketch12 = body.newObject("Sketcher::SketchObject", "Sketch011")
sketch12.AttachmentSupport = (doc.getObject("XY_Plane"), [""])
sketch12.MapMode = "FlatFace"
sketch12.AttachmentOffset = App.Placement(App.Vector(0, 0, -1.375 * 25.4), App.Rotation())
sketch12.addGeometry(Part.Circle(App.Vector(16, 16, 0), App.Vector(0, 0, 1), 6), False)
sketch12.addConstraint(Sketcher.Constraint("Diameter", 0, Q("0.5 in")))
sketch12.addConstraint(Sketcher.Constraint("DistanceX", -1, 1, 0, 3, Q("0.625 in")))
sketch12.addConstraint(Sketcher.Constraint("DistanceY", -1, 1, 0, 3, Q("0.625 in")))
sketch12.setExpression("Constraints[0]", "Params.sketch12_diameter")
pocket4 = body.newObject("PartDesign::Pocket", "Pocket003")
pocket4.Profile = sketch12
pocket4.Type = "UpToFirst"
pocket4.Reversed = True

sketch13 = body.newObject("Sketcher::SketchObject", "Sketch012")
sketch13.AttachmentSupport = (doc.getObject("XY_Plane"), [""])
sketch13.MapMode = "FlatFace"
sketch13.AttachmentOffset = App.Placement(App.Vector(0, 0, -1.375 * 25.4), App.Rotation())
sketch13.addGeometry(Part.Circle(App.Vector(-16, 16, 0), App.Vector(0, 0, 1), 6), False)
sketch13.addConstraint(Sketcher.Constraint("Diameter", 0, Q("0.5 in")))
sketch13.addConstraint(Sketcher.Constraint("DistanceX", 0, 3, -1, 1, Q("0.625 in")))
sketch13.addConstraint(Sketcher.Constraint("DistanceY", -1, 1, 0, 3, Q("0.625 in")))
sketch13.setExpression("Constraints[0]", "Params.sketch13_diameter")
pocket5 = body.newObject("PartDesign::Pocket", "Pocket004")
pocket5.Profile = sketch13
pocket5.Type = "UpToFirst"
pocket5.Reversed = True

sketch14 = body.newObject("Sketcher::SketchObject", "Sketch013")
sketch14.AttachmentSupport = (doc.getObject("XY_Plane"), [""])
sketch14.MapMode = "FlatFace"
sketch14.AttachmentOffset = App.Placement(App.Vector(0, 0, -1.375 * 25.4), App.Rotation())
sketch14.addGeometry(Part.Circle(App.Vector(-8.3, 23.4, 0), App.Vector(0, 0, 1), 1.1), False)
sketch14.addConstraint(Sketcher.Constraint("Diameter", 0, Q("0.089 in")))
sketch14.addConstraint(Sketcher.Constraint("DistanceX", 0, 3, -1, 1, Q("0.328 in")))
sketch14.addConstraint(Sketcher.Constraint("DistanceY", -1, 1, 0, 3, Q("0.922 in")))
sketch14.setExpression("Constraints[0]", "Params.sketch14_diameter")
pocket6 = body.newObject("PartDesign::Pocket", "Pocket005")
pocket6.Profile = sketch14
pocket6.Type = "UpToFirst"
pocket6.Reversed = True

sketch15 = body.newObject("Sketcher::SketchObject", "Sketch014")
sketch15.AttachmentSupport = (doc.getObject("XY_Plane"), [""])
sketch15.MapMode = "FlatFace"
sketch15.AttachmentOffset = App.Placement(App.Vector(0, 0, -1.375 * 25.4), App.Rotation())
sketch15.addGeometry(Part.Circle(App.Vector(-23.4, 23.4, 0), App.Vector(0, 0, 1), 1.1), False)
sketch15.addConstraint(Sketcher.Constraint("Diameter", 0, Q("0.089 in")))
sketch15.addConstraint(Sketcher.Constraint("DistanceX", 0, 3, -1, 1, Q("0.922 in")))
sketch15.addConstraint(Sketcher.Constraint("DistanceY", -1, 1, 0, 3, Q("0.922 in")))
sketch15.setExpression("Constraints[0]", "Params.sketch15_diameter")
pocket7 = body.newObject("PartDesign::Pocket", "Pocket006")
pocket7.Profile = sketch15
pocket7.Type = "UpToFirst"
pocket7.Reversed = True

sketch16 = body.newObject("Sketcher::SketchObject", "Sketch015")
sketch16.AttachmentSupport = (doc.getObject("XY_Plane"), [""])
sketch16.MapMode = "FlatFace"
sketch16.AttachmentOffset = App.Placement(App.Vector(0, 0, -1.375 * 25.4), App.Rotation())
sketch16.addGeometry(Part.Circle(App.Vector(-23.4, 8.3, 0), App.Vector(0, 0, 1), 1.1), False)
sketch16.addConstraint(Sketcher.Constraint("Diameter", 0, Q("0.089 in")))
sketch16.addConstraint(Sketcher.Constraint("DistanceX", 0, 3, -1, 1, Q("0.922 in")))
sketch16.addConstraint(Sketcher.Constraint("DistanceY", -1, 1, 0, 3, Q("0.328 in")))
sketch16.setExpression("Constraints[0]", "Params.sketch16_diameter")
pocket8 = body.newObject("PartDesign::Pocket", "Pocket007")
pocket8.Profile = sketch16
pocket8.Type = "UpToFirst"
pocket8.Reversed = True

sketch17 = body.newObject("Sketcher::SketchObject", "Sketch016")
sketch17.AttachmentSupport = (doc.getObject("XY_Plane"), [""])
sketch17.MapMode = "FlatFace"
sketch17.AttachmentOffset = App.Placement(App.Vector(0, 0, -1.375 * 25.4), App.Rotation())
sketch17.addGeometry(Part.Circle(App.Vector(-8.3, 8.3, 0), App.Vector(0, 0, 1), 1.1), False)
sketch17.addConstraint(Sketcher.Constraint("Diameter", 0, Q("0.089 in")))
sketch17.addConstraint(Sketcher.Constraint("DistanceX", 0, 3, -1, 1, Q("0.328 in")))
sketch17.addConstraint(Sketcher.Constraint("DistanceY", -1, 1, 0, 3, Q("0.328 in")))
sketch17.setExpression("Constraints[0]", "Params.sketch17_diameter")
pocket9 = body.newObject("PartDesign::Pocket", "Pocket008")
pocket9.Profile = sketch17
pocket9.Type = "UpToFirst"
pocket9.Reversed = True

sketch18 = body.newObject("Sketcher::SketchObject", "Sketch017")
sketch18.AttachmentSupport = (doc.getObject("XY_Plane"), [""])
sketch18.MapMode = "FlatFace"
sketch18.AttachmentOffset = App.Placement(App.Vector(0, 0, -1.375 * 25.4), App.Rotation())
sketch18.addGeometry(Part.Circle(App.Vector(8.3, 8.3, 0), App.Vector(0, 0, 1), 1.1), False)
sketch18.addConstraint(Sketcher.Constraint("Diameter", 0, Q("0.089 in")))
sketch18.addConstraint(Sketcher.Constraint("DistanceX", -1, 1, 0, 3, Q("0.328 in")))
sketch18.addConstraint(Sketcher.Constraint("DistanceY", -1, 1, 0, 3, Q("0.328 in")))
sketch18.setExpression("Constraints[0]", "Params.sketch18_diameter")
pocket10 = body.newObject("PartDesign::Pocket", "Pocket009")
pocket10.Profile = sketch18
pocket10.Type = "UpToFirst"
pocket10.Reversed = True

sketch19 = body.newObject("Sketcher::SketchObject", "Sketch018")
sketch19.AttachmentSupport = (doc.getObject("XY_Plane"), [""])
sketch19.MapMode = "FlatFace"
sketch19.AttachmentOffset = App.Placement(App.Vector(0, 0, -1.375 * 25.4), App.Rotation())
sketch19.addGeometry(Part.Circle(App.Vector(8.3, 23.4, 0), App.Vector(0, 0, 1), 1.1), False)
sketch19.addConstraint(Sketcher.Constraint("Diameter", 0, Q("0.089 in")))
sketch19.addConstraint(Sketcher.Constraint("DistanceX", -1, 1, 0, 3, Q("0.328 in")))
sketch19.addConstraint(Sketcher.Constraint("DistanceY", -1, 1, 0, 3, Q("0.922 in")))
sketch19.setExpression("Constraints[0]", "Params.sketch19_diameter")
pocket11 = body.newObject("PartDesign::Pocket", "Pocket010")
pocket11.Profile = sketch19
pocket11.Type = "UpToFirst"
pocket11.Reversed = True

sketch20 = body.newObject("Sketcher::SketchObject", "Sketch019")
sketch20.AttachmentSupport = (doc.getObject("XY_Plane"), [""])
sketch20.MapMode = "FlatFace"
sketch20.AttachmentOffset = App.Placement(App.Vector(0, 0, -1.375 * 25.4), App.Rotation())
sketch20.addGeometry(Part.Circle(App.Vector(23.4, 23.4, 0), App.Vector(0, 0, 1), 1.1), False)
sketch20.addConstraint(Sketcher.Constraint("Diameter", 0, Q("0.089 in")))
sketch20.addConstraint(Sketcher.Constraint("DistanceX", -1, 1, 0, 3, Q("0.922 in")))
sketch20.addConstraint(Sketcher.Constraint("DistanceY", -1, 1, 0, 3, Q("0.922 in")))
sketch20.setExpression("Constraints[0]", "Params.sketch20_diameter")
pocket12 = body.newObject("PartDesign::Pocket", "Pocket011")
pocket12.Profile = sketch20
pocket12.Type = "UpToFirst"
pocket12.Reversed = True

sketch21 = body.newObject("Sketcher::SketchObject", "Sketch020")
sketch21.AttachmentSupport = (doc.getObject("XY_Plane"), [""])
sketch21.MapMode = "FlatFace"
sketch21.AttachmentOffset = App.Placement(App.Vector(0, 0, -1.375 * 25.4), App.Rotation())
sketch21.addGeometry(Part.Circle(App.Vector(23.4, 8.3, 0), App.Vector(0, 0, 1), 1.1), False)
sketch21.addConstraint(Sketcher.Constraint("Diameter", 0, Q("0.089 in")))
sketch21.addConstraint(Sketcher.Constraint("DistanceX", -1, 1, 0, 3, Q("0.922 in")))
sketch21.addConstraint(Sketcher.Constraint("DistanceY", -1, 1, 0, 3, Q("0.328 in")))
sketch21.setExpression("Constraints[0]", "Params.sketch21_diameter")
pocket13 = body.newObject("PartDesign::Pocket", "Pocket012")
pocket13.Profile = sketch21
pocket13.Type = "UpToFirst"
pocket13.Reversed = True

doc.recompute()
